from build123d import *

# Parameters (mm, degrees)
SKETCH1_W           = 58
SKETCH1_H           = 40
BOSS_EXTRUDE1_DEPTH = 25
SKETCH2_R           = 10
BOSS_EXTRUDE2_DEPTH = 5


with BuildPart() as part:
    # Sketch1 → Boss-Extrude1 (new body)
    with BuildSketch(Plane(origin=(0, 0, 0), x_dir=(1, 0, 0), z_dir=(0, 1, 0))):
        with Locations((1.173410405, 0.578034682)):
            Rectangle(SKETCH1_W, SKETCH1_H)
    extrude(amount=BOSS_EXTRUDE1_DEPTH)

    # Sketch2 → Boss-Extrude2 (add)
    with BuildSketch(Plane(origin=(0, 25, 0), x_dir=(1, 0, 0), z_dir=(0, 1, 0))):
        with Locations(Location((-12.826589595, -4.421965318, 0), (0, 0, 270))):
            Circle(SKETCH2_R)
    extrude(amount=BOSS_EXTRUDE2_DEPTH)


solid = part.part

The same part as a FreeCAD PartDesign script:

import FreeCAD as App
import Part
import Sketcher
Q = App.Units.Quantity


def add_polygon(sketch, points):
    """Adds a closed chain of lines whose ends are joined by coincident constraints."""
    first, n = sketch.GeometryCount, len(points)
    for a, b in zip(points, points[1:] + points[:1]):
        sketch.addGeometry(Part.LineSegment(App.Vector(*a, 0), App.Vector(*b, 0)), False)
    for i in range(n):
        sketch.addConstraint(Sketcher.Constraint("Coincident", first + i, 2, first + (i + 1) % n, 1))

doc = App.newDocument("Part")
body = doc.addObject("PartDesign::Body", "Body")

# Sketch on XZ plane
sketch1 = body.newObject("Sketcher::SketchObject", "Sketch")
sketch1.AttachmentSupport = (doc.getObject("XZ_Plane"), [""])
sketch1.MapMode = "FlatFace"
add_polygon(sketch1, [(-27.82659, -20.578035), (-27.82659, 19.421965), (30.17341, 19.421965), (30.17341, -20.578035)])  # lines 0-3
sketch1.addConstraint(Sketcher.Constraint("Vertical", 0))
sketch1.addConstraint(Sketcher.Constraint("Horizontal", 1))
sketch1.addConstraint(Sketcher.Constraint("Vertical", 2))
sketch1.addConstraint(Sketcher.Constraint("Horizontal", 3))
sketch1.addConstraint(Sketcher.Constraint("DistanceX", 1, 1, 1, 2, Q("58 mm")))
sketch1.addConstraint(Sketcher.Constraint("DistanceY", 0, 1, 0, 2, Q("40 mm")))
sketch1.addConstraint(Sketcher.Constraint("DistanceX", 0, 2, -1, 1, Q("27.82659 mm")))
sketch1.addConstraint(Sketcher.Constraint("DistanceY", -1, 1, 0, 2, Q("19.421965 mm")))
pad1 = body.newObject("PartDesign::Pad", "Pad")
pad1.Profile = sketch1
pad1.Length = 25
pad1.Reversed = True

# Sketch on XZ plane
sketch2 = body.newObject("Sketcher::SketchObject", "Sketch001")
sketch2.AttachmentSupport = (doc.getObject("XZ_Plane"), [""])
sketch2.MapMode = "FlatFace"
sketch2.AttachmentOffset = App.Placement(App.Vector(0, 0, -25), App.Rotation())
sketch2.addGeometry(Part.Circle(App.Vector(-12.82659, 4.421965, 0), App.Vector(0, 0, 1), 10), False)
sketch2.addConstraint(Sketcher.Constraint("Diameter", 0, Q("20 mm")))
sketch2.addConstraint(Sketcher.Constraint("DistanceX", 0, 3, -1, 1, Q("12.82659 mm")))
sketch2.addConstraint(Sketcher.Constraint("DistanceY", -1, 1, 0, 3, Q("4.421965 mm")))
pad2 = body.newObject("PartDesign::Pad", "Pad001")
pad2.Profile = sketch2
pad2.Length = 5
pad2.Reversed = True

doc.recompute()
